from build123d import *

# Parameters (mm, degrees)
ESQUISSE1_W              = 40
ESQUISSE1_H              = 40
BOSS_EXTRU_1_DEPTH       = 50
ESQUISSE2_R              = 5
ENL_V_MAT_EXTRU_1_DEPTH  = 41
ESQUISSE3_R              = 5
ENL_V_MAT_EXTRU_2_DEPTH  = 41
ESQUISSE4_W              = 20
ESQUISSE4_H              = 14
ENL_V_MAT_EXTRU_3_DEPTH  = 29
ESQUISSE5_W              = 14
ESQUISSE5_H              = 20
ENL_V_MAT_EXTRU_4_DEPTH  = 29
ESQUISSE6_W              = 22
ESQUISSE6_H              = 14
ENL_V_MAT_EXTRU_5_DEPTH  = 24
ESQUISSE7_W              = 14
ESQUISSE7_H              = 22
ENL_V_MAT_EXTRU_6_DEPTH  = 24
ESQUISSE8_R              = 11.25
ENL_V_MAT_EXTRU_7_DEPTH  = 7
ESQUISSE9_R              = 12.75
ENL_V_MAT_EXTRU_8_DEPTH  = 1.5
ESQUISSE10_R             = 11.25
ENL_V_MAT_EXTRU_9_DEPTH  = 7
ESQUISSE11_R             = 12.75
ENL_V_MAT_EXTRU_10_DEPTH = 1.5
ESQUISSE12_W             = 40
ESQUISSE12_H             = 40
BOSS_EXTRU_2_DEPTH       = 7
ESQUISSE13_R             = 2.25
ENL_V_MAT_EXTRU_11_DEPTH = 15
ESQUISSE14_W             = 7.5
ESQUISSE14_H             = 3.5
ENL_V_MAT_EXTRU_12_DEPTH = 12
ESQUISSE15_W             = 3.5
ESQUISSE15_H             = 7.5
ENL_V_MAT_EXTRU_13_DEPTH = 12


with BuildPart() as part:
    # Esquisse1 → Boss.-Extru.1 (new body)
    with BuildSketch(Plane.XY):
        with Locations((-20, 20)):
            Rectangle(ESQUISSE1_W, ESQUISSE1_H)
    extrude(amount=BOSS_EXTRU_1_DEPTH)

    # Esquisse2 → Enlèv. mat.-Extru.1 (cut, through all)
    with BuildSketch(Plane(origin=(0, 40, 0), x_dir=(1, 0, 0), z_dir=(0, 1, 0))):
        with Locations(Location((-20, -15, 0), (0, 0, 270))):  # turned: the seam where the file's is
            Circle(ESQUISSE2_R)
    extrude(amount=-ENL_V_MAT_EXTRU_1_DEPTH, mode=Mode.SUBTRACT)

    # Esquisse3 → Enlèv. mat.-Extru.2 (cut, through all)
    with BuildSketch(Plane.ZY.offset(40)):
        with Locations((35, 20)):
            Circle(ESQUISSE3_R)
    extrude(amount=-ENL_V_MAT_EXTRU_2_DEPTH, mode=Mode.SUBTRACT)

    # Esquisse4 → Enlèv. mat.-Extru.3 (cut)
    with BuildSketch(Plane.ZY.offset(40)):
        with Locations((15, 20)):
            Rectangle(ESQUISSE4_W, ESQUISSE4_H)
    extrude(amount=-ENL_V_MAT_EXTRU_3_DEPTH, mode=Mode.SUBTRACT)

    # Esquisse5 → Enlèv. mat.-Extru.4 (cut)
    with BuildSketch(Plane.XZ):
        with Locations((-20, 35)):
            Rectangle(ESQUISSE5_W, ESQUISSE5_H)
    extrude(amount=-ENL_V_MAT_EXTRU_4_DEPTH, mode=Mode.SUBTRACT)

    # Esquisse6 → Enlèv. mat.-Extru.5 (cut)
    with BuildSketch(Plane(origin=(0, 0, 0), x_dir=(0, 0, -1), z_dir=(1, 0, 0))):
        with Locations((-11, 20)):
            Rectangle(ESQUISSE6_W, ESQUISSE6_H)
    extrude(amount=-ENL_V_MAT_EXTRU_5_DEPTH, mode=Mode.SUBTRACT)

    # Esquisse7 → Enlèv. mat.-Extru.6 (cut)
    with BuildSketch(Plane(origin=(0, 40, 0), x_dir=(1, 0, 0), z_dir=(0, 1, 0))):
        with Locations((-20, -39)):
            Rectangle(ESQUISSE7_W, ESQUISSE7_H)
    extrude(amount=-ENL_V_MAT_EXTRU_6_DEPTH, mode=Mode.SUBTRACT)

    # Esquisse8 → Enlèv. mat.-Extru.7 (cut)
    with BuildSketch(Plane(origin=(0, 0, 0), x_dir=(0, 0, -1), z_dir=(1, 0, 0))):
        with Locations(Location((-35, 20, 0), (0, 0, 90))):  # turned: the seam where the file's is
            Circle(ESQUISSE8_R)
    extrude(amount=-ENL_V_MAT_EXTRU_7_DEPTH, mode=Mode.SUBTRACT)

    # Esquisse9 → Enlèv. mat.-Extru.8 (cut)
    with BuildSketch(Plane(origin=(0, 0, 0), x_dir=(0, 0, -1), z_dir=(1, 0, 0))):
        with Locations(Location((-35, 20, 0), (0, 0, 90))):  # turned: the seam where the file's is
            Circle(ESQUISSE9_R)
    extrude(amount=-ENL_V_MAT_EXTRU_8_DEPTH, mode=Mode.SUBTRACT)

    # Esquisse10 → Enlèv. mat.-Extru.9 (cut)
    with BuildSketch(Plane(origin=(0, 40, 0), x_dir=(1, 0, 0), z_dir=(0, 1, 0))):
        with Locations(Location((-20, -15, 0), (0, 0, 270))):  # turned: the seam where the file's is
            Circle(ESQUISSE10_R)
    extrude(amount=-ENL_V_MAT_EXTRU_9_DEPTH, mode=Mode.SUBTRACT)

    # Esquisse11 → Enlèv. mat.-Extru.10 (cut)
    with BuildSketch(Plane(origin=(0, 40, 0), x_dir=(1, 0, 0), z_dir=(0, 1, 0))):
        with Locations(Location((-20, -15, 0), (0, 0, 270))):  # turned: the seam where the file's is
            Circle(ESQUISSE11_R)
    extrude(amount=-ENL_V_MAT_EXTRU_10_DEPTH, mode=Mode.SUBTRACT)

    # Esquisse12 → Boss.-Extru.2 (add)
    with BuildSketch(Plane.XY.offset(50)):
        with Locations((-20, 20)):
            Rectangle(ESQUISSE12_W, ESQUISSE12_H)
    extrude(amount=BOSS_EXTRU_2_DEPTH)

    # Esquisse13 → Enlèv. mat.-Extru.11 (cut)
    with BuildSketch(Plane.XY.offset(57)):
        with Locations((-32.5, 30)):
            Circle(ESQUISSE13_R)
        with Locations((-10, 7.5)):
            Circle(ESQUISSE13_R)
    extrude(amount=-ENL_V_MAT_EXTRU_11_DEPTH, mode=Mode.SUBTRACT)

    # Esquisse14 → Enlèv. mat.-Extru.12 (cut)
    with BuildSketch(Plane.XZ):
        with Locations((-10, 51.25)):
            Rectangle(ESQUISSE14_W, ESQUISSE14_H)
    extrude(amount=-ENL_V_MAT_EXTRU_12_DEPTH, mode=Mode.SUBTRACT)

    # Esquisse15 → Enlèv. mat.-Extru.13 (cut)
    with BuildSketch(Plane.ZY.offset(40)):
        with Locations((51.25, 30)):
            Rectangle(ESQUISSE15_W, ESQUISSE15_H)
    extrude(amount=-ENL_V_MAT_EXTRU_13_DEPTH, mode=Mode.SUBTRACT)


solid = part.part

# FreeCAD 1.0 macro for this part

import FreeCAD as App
import Part
import Sketcher
from FreeCAD import Vector
Q = App.Units.Quantity


def add_polygon(sketch, points):
    """Adds a closed chain of lines whose ends are joined by coincident constraints."""
    first, n = sketch.GeometryCount, len(points)
    for a, b in zip(points, points[1:] + points[:1]):
        sketch.addGeometry(Part.LineSegment(App.Vector(*a, 0), App.Vector(*b, 0)), False)
    for i in range(n):
        sketch.addConstraint(Sketcher.Constraint("Coincident", first + i, 2, first + (i + 1) % n, 1))

doc = App.newDocument("Part")
params = doc.addObject("Spreadsheet::Sheet", "Params")
for row, (alias, value) in enumerate([
    ("sketch1_width", "40 mm"),
    ("pad1_length", "50 mm"),
    ("sketch2_diameter", "10 mm"),
    ("sketch3_diameter", "10 mm"),
    ("sketch4_width", "14 mm"),
    ("sketch4_height", "20 mm"),
    ("pocket3_length", "29 mm"),
    ("sketch5_width", "14 mm"),
    ("sketch5_height", "20 mm"),
    ("pocket4_length", "29 mm"),
    ("sketch6_width", "14 mm"),
    ("sketch6_height", "22 mm"),
    ("pocket5_length", "24 mm"),
    ("sketch7_width", "14 mm"),
    ("sketch7_height", "22 mm"),
    ("pocket6_length", "24 mm"),
    ("sketch8_diameter", "22.5 mm"),
    ("pocket7_length", "7 mm"),
    ("sketch9_diameter", "25.5 mm"),
    ("pocket8_length", "1.5 mm"),
    ("sketch10_diameter", "22.5 mm"),
    ("pocket9_length", "7 mm"),
    ("sketch11_diameter", "25.5 mm"),
    ("pocket10_length", "1.5 mm"),
    ("sketch12_width", "40 mm"),
    ("pad2_length", "7 mm"),
    ("sketch13_diameter", "4.5 mm"),
    ("pocket11_length", "15 mm"),
    ("sketch14_width", "7.5 mm"),
    ("sketch14_height", "3.5 mm"),
    ("pocket12_length", "12 mm"),
    ("sketch15_width", "7.5 mm"),
    ("sketch15_height", "3.5 mm"),
    ("pocket13_length", "12 mm"),
], start=1):
    params.set(f"A{row}", alias)
    params.set(f"B{row}", "=" + value)
    params.setAlias(f"B{row}", alias)

body = doc.addObject("PartDesign::Body", "Body")

# Sketch on XY plane
sketch1 = body.newObject("Sketcher::SketchObject", "Sketch")
sketch1.AttachmentSupport = (doc.getObject("XY_Plane"), [""])
sketch1.MapMode = "FlatFace"
add_polygon(sketch1, [(-40, 40), (-40, 0), (0, 0), (0, 40)])  # lines 0-3
sketch1.addConstraint([
    Sketcher.Constraint("Vertical", 0),
    Sketcher.Constraint("Horizontal", 1),
    Sketcher.Constraint("Vertical", 2),
    Sketcher.Constraint("Horizontal", 3),
    Sketcher.Constraint("Coincident", 1, 2, -1, 1),
    Sketcher.Constraint("Equal", 3, 0),
    Sketcher.Constraint("DistanceX", 1, 1, 1, 2, Q("40 mm")),
])
sketch1.setExpression("Constraints[10]", "Params.sketch1_width")
pad1 = body.newObject("PartDesign::Pad", "Pad")
pad1.Profile = sketch1
pad1.setExpression("Length", "Params.pad1_length")

# Sketch on XZ plane
sketch2 = body.newObject("Sketcher::SketchObject", "Sketch001")
sketch2.AttachmentSupport = (doc.getObject("XZ_Plane"), [""])
sketch2.MapMode = "FlatFace"
sketch2.AttachmentOffset = App.Placement(Vector(0, 0, -40), App.Rotation())
sketch2.addGeometry(Part.Circle(Vector(-20, 15, 0), Vector(0, 0, 1), 5), False)
sketch2.addConstraint([
    Sketcher.Constraint("Diameter", 0, Q("10 mm")),
    Sketcher.Constraint("DistanceX", 0, 3, -1, 1, Q("20 mm")),
    Sketcher.Constraint("DistanceY", -1, 1, 0, 3, Q("15 mm")),
])
sketch2.setExpression("Constraints[0]", "Params.sketch2_diameter")
pocket1 = body.newObject("PartDesign::Pocket", "Pocket")
pocket1.Profile = sketch2
pocket1.Type = "ThroughAll"
pocket1.Reversed = True

# Sketch on YZ plane
sketch3 = body.newObject("Sketcher::SketchObject", "Sketch002")
sketch3.AttachmentSupport = (doc.getObject("YZ_Plane"), [""])
sketch3.MapMode = "FlatFace"
sketch3.AttachmentOffset = App.Placement(Vector(0, 0, -40), App.Rotation())
sketch3.addGeometry(Part.Circle(Vector(20, 35, 0), Vector(0, 0, 1), 5), False)
sketch3.addConstraint([
    Sketcher.Constraint("Diameter", 0, Q("10 mm")),
    Sketcher.Constraint("DistanceX", -1, 1, 0, 3, Q("20 mm")),
    Sketcher.Constraint("DistanceY", -1, 1, 0, 3, Q("35 mm")),
])
sketch3.setExpression("Constraints[0]", "Params.sketch3_diameter")
pocket2 = body.newObject("PartDesign::Pocket", "Pocket001")
pocket2.Profile = sketch3
pocket2.Type = "ThroughAll"
pocket2.Reversed = True

# Sketch on YZ plane
sketch4 = body.newObject("Sketcher::SketchObject", "Sketch003")
sketch4.AttachmentSupport = (doc.getObject("YZ_Plane"), [""])
sketch4.MapMode = "FlatFace"
sketch4.AttachmentOffset = App.Placement(Vector(0, 0, -40), App.Rotation())
add_polygon(sketch4, [(27, 5), (13, 5), (13, 25), (27, 25)])  # lines 0-3
sketch4.addConstraint([
    Sketcher.Constraint("Horizontal", 0),
    Sketcher.Constraint("Vertical", 1),
    Sketcher.Constraint("Horizontal", 2),
    Sketcher.Constraint("Vertical", 3),
    Sketcher.Constraint("DistanceX", 0, 2, 0, 1, Q("14 mm")),
    Sketcher.Constraint("DistanceY", 1, 1, 1, 2, Q("20 mm")),
    Sketcher.Constraint("DistanceX", -1, 1, 0, 2, Q("13 mm")),
    Sketcher.Constraint("DistanceY", -1, 1, 0, 2, Q("5 mm")),
])
sketch4.setExpression("Constraints[8]", "Params.sketch4_width")
sketch4.setExpression("Constraints[9]", "Params.sketch4_height")
pocket3 = body.newObject("PartDesign::Pocket", "Pocket002")
pocket3.Profile = sketch4
pocket3.setExpression("Length", "Params.pocket3_length")
pocket3.Reversed = True

# Sketch on XZ plane
sketch5 = body.newObject("Sketcher::SketchObject", "Sketch004")
sketch5.AttachmentSupport = (doc.getObject("XZ_Plane"), [""])
sketch5.MapMode = "FlatFace"
add_polygon(sketch5, [(-27, 45), (-27, 25), (-13, 25), (-13, 45)])  # lines 0-3
sketch5.addConstraint([
    Sketcher.Constraint("Vertical", 0),
    Sketcher.Constraint("Horizontal", 1),
    Sketcher.Constraint("Vertical", 2),
    Sketcher.Constraint("Horizontal", 3),
    Sketcher.Constraint("DistanceX", 1, 1, 1, 2, Q("14 mm")),
    Sketcher.Constraint("DistanceY", 0, 2, 0, 1, Q("20 mm")),
    Sketcher.Constraint("DistanceX", 0, 2, -1, 1, Q("27 mm")),
    Sketcher.Constraint("DistanceY", -1, 1, 0, 2, Q("25 mm")),
])
sketch5.setExpression("Constraints[8]", "Params.sketch5_width")
sketch5.setExpression("Constraints[9]", "Params.sketch5_height")
pocket4 = body.newObject("PartDesign::Pocket", "Pocket003")
pocket4.Profile = sketch5
pocket4.setExpression("Length", "Params.pocket4_length")

# Sketch on YZ plane
sketch6 = body.newObject("Sketcher::SketchObject", "Sketch005")
sketch6.AttachmentSupport = (doc.getObject("YZ_Plane"), [""])
sketch6.MapMode = "FlatFace"
add_polygon(sketch6, [(27, 22), (13, 22), (13, 0), (27, 0)])  # lines 0-3
sketch6.addConstraint([
    Sketcher.Constraint("Horizontal", 0),
    Sketcher.Constraint("Vertical", 1),
    Sketcher.Constraint("Horizontal", 2),
    Sketcher.Constraint("Vertical", 3),
    Sketcher.Constraint("PointOnObject", 1, 2, -1),
    Sketcher.Constraint("DistanceX", 0, 2, 0, 1, Q("14 mm")),
    Sketcher.Constraint("DistanceY", 1, 2, 1, 1, Q("22 mm")),
    Sketcher.Constraint("DistanceX", -1, 1, 0, 2, Q("13 mm")),
])
sketch6.setExpression("Constraints[9]", "Params.sketch6_width")
sketch6.setExpression("Constraints[10]", "Params.sketch6_height")
pocket5 = body.newObject("PartDesign::Pocket", "Pocket004")
pocket5.Profile = sketch6
pocket5.setExpression("Length", "Params.pocket5_length")

# Sketch on XZ plane
sketch7 = body.newObject("Sketcher::SketchObject", "Sketch006")
sketch7.AttachmentSupport = (doc.getObject("XZ_Plane"), [""])
sketch7.MapMode = "FlatFace"
sketch7.AttachmentOffset = App.Placement(Vector(0, 0, -40), App.Rotation())
add_polygon(sketch7, [(-27, 28), (-27, 50), (-13, 50), (-13, 28)])  # lines 0-3
sketch7.addConstraint([
    Sketcher.Constraint("Vertical", 0),
    Sketcher.Constraint("Horizontal", 1),
    Sketcher.Constraint("Vertical", 2),
    Sketcher.Constraint("Horizontal", 3),
    Sketcher.Constraint("DistanceX", 1, 1, 1, 2, Q("14 mm")),
    Sketcher.Constraint("DistanceY", 0, 1, 0, 2, Q("22 mm")),
    Sketcher.Constraint("DistanceX", 0, 2, -1, 1, Q("27 mm")),
    Sketcher.Constraint("DistanceY", -1, 1, 0, 2, Q("50 mm")),
])
sketch7.setExpression("Constraints[8]", "Params.sketch7_width")
sketch7.setExpression("Constraints[9]", "Params.sketch7_height")
pocket6 = body.newObject("PartDesign::Pocket", "Pocket005")
pocket6.Profile = sketch7
pocket6.setExpression("Length", "Params.pocket6_length")
pocket6.Reversed = True

# Sketch on YZ plane
sketch8 = body.newObject("Sketcher::SketchObject", "Sketch007")
sketch8.AttachmentSupport = (doc.getObject("YZ_Plane"), [""])
sketch8.MapMode = "FlatFace"
sketch8.addGeometry(Part.Circle(Vector(20, 35, 0), Vector(0, 0, 1), 11), False)
sketch8.addConstraint([
    Sketcher.Constraint("Diameter", 0, Q("22.5 mm")),
    Sketcher.Constraint("DistanceX", -1, 1, 0, 3, Q("20 mm")),
    Sketcher.Constraint("DistanceY", -1, 1, 0, 3, Q("35 mm")),
])
sketch8.setExpression("Constraints[0]", "Params.sketch8_diameter")
pocket7 = body.newObject("PartDesign::Pocket", "Pocket006")
pocket7.Profile = sketch8
pocket7.setExpression("Length", "Params.pocket7_length")

# Sketch on YZ plane
sketch9 = body.newObject("Sketcher::SketchObject", "Sketch008")
sketch9.AttachmentSupport = (doc.getObject("YZ_Plane"), [""])
sketch9.MapMode = "FlatFace"
sketch9.addGeometry(Part.Circle(Vector(20, 35, 0), Vector(0, 0, 1), 13), False)
sketch9.addConstraint([
    Sketcher.Constraint("Diameter", 0, Q("25.5 mm")),
    Sketcher.Constraint("DistanceX", -1, 1, 0, 3, Q("20 mm")),
    Sketcher.Constraint("DistanceY", -1, 1, 0, 3, Q("35 mm")),
])
sketch9.setExpression("Constraints[0]", "Params.sketch9_diameter")
pocket8 = body.newObject("PartDesign::Pocket", "Pocket007")
pocket8.Profile = sketch9
pocket8.setExpression("Length", "Params.pocket8_length")

# Sketch on XZ plane
sketch10 = body.newObject("Sketcher::SketchObject", "Sketch009")
sketch10.AttachmentSupport = (doc.getObject("XZ_Plane"), [""])
sketch10.MapMode = "FlatFace"
sketch10.AttachmentOffset = App.Placement(Vector(0, 0, -40), App.Rotation())
sketch10.addGeometry(Part.Circle(Vector(-20, 15, 0), Vector(0, 0, 1), 11), False)
sketch10.addConstraint([
    Sketcher.Constraint("Diameter", 0, Q("22.5 mm")),
    Sketcher.Constraint("DistanceX", 0, 3, -1, 1, Q("20 mm")),
    Sketcher.Constraint("DistanceY", -1, 1, 0, 3, Q("15 mm")),
])
sketch10.setExpression("Constraints[0]", "Params.sketch10_diameter")
pocket9 = body.newObject("PartDesign::Pocket", "Pocket008")
pocket9.Profile = sketch10
pocket9.setExpression("Length", "Params.pocket9_length")
pocket9.Reversed = True

# Sketch on XZ plane
sketch11 = body.newObject("Sketcher::SketchObject", "Sketch010")
sketch11.AttachmentSupport = (doc.getObject("XZ_Plane"), [""])
sketch11.MapMode = "FlatFace"
sketch11.AttachmentOffset = App.Placement(Vector(0, 0, -40), App.Rotation())
sketch11.addGeometry(Part.Circle(Vector(-20, 15, 0), Vector(0, 0, 1), 13), False)
sketch11.addConstraint([
    Sketcher.Constraint("Diameter", 0, Q("25.5 mm")),
    Sketcher.Constraint("DistanceX", 0, 3, -1, 1, Q("20 mm")),
    Sketcher.Constraint("DistanceY", -1, 1, 0, 3, Q("15 mm")),
])
sketch11.setExpression("Constraints[0]", "Params.sketch11_diameter")
pocket10 = body.newObject("PartDesign::Pocket", "Pocket009")
pocket10.Profile = sketch11
pocket10.setExpression("Length", "Params.pocket10_length")
pocket10.Reversed = True

# Sketch on XY plane
sketch12 = body.newObject("Sketcher::SketchObject", "Sketch011")
sketch12.AttachmentSupport = (doc.getObject("XY_Plane"), [""])
sketch12.MapMode = "FlatFace"
sketch12.AttachmentOffset = App.Placement(Vector(0, 0, 50), App.Rotation())
add_polygon(sketch12, [(-40, 40), (-40, 0), (0, 0), (0, 40)])  # lines 0-3
sketch12.addConstraint([
    Sketcher.Constraint("Vertical", 0),
    Sketcher.Constraint("Horizontal", 1),
    Sketcher.Constraint("Vertical", 2),
    Sketcher.Constraint("Horizontal", 3),
    Sketcher.Constraint("Coincident", 1, 2, -1, 1),
    Sketcher.Constraint("Equal", 3, 0),
    Sketcher.Constraint("DistanceX", 1, 1, 1, 2, Q("40 mm")),
])
sketch12.setExpression("Constraints[10]", "Params.sketch12_width")
pad2 = body.newObject("PartDesign::Pad", "Pad001")
pad2.Profile = sketch12
pad2.setExpression("Length", "Params.pad2_length")

# Sketch on XY plane
sketch13 = body.newObject("Sketcher::SketchObject", "Sketch012")
sketch13.AttachmentSupport = (doc.getObject("XY_Plane"), [""])
sketch13.MapMode = "FlatFace"
sketch13.AttachmentOffset = App.Placement(Vector(0, 0, 57), App.Rotation())
sketch13.addGeometry([
    Part.Circle(Vector(-32.5, 30, 0), Vector(0, 0, 1), 2.2),
    Part.Circle(Vector(-10, 7.5, 0), Vector(0, 0, 1), 2.2),
], False)
sketch13.addConstraint([
    Sketcher.Constraint("Equal", 0, 1),
    Sketcher.Constraint("Diameter", 0, Q("4.5 mm")),
    Sketcher.Constraint("DistanceY", -1, 1, 0, 3, Q("30 mm")),
    Sketcher.Constraint("DistanceX", 1, 3, -1, 1, Q("10 mm")),
    Sketcher.Constraint("DistanceX", 0, 3, -1, 1, Q("32.5 mm")),
    Sketcher.Constraint("DistanceY", -1, 1, 1, 3, Q("7.5 mm")),
])
sketch13.setExpression("Constraints[1]", "Params.sketch13_diameter")
pocket11 = body.newObject("PartDesign::Pocket", "Pocket010")
pocket11.Profile = sketch13
pocket11.setExpression("Length", "Params.pocket11_length")

# Sketch on XZ plane
sketch14 = body.newObject("Sketcher::SketchObject", "Sketch013")
sketch14.AttachmentSupport = (doc.getObject("XZ_Plane"), [""])
sketch14.MapMode = "FlatFace"
add_polygon(sketch14, [(-13.8, 53), (-13.8, 49.5), (-6.2, 49.5), (-6.2, 53)])  # lines 0-3
sketch14.addConstraint([
    Sketcher.Constraint("Vertical", 0),
    Sketcher.Constraint("Horizontal", 1),
    Sketcher.Constraint("Vertical", 2),
    Sketcher.Constraint("Horizontal", 3),
    Sketcher.Constraint("DistanceX", 1, 1, 1, 2, Q("7.5 mm")),
    Sketcher.Constraint("DistanceY", 0, 2, 0, 1, Q("3.5 mm")),
    Sketcher.Constraint("DistanceY", -1, 1, 2, 2, Q("53 mm")),
    Sketcher.Constraint("DistanceX", 0, 2, -1, 1, Q("13.75 mm")),
])
sketch14.setExpression("Constraints[8]", "Params.sketch14_width")
sketch14.setExpression("Constraints[9]", "Params.sketch14_height")
pocket12 = body.newObject("PartDesign::Pocket", "Pocket011")
pocket12.Profile = sketch14
pocket12.setExpression("Length", "Params.pocket12_length")

# Sketch on YZ plane
sketch15 = body.newObject("Sketcher::SketchObject", "Sketch014")
sketch15.AttachmentSupport = (doc.getObject("YZ_Plane"), [""])
sketch15.MapMode = "FlatFace"
sketch15.AttachmentOffset = App.Placement(Vector(0, 0, -40), App.Rotation())
add_polygon(sketch15, [(33.8, 49.5), (26.2, 49.5), (26.2, 53), (33.8, 53)])  # lines 0-3
sketch15.addConstraint([
    Sketcher.Constraint("Horizontal", 0),
    Sketcher.Constraint("Vertical", 1),
    Sketcher.Constraint("Horizontal", 2),
    Sketcher.Constraint("Vertical", 3),
    Sketcher.Constraint("DistanceX", 0, 2, 0, 1, Q("7.5 mm")),
    Sketcher.Constraint("DistanceY", 1, 1, 1, 2, Q("3.5 mm")),
    Sketcher.Constraint("DistanceY", -1, 1, 1, 2, Q("53 mm")),
    Sketcher.Constraint("DistanceX", -1, 1, 0, 2, Q("26.25 mm")),
])
sketch15.setExpression("Constraints[8]", "Params.sketch15_width")
sketch15.setExpression("Constraints[9]", "Params.sketch15_height")
pocket13 = body.newObject("PartDesign::Pocket", "Pocket012")
pocket13.Profile = sketch15
pocket13.setExpression("Length", "Params.pocket13_length")
pocket13.Reversed = True

doc.recompute()
